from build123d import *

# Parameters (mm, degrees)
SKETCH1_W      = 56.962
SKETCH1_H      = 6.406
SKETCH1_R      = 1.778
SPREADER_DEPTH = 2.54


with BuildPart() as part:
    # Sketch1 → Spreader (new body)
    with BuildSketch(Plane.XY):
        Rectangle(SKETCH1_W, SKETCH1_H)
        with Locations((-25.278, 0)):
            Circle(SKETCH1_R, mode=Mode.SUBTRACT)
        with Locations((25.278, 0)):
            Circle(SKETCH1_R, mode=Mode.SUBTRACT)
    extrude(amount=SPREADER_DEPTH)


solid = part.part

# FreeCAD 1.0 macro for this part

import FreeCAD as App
import Part
import Sketcher
from FreeCAD import Vector
Q = App.Units.Quantity

doc = App.newDocument("Part")
body = doc.addObject("PartDesign::Body", "Body")

# Sketch on XY plane
sketch1 = doc.addObject("Sketcher::SketchObject", "Sketch")
body.addObject(sketch1)
sketch1.AttachmentSupport = (doc.XY_Plane, [""])
sketch1.MapMode = "FlatFace"
sketch1.addGeometry([
    Part.LineSegment(Vector(-28.481, 3.203, 0), Vector(-28.481, -3.203, 0)),  # 0
    Part.LineSegment(Vector(-28.481, -3.203, 0), Vector(28.481, -3.203, 0)),  # 1
    Part.LineSegment(Vector(28.481, -3.203, 0), Vector(28.481, 3.203, 0)),  # 2
    Part.LineSegment(Vector(28.481, 3.203, 0), Vector(-28.481, 3.203, 0)),  # 3
    Part.Circle(Vector(-25.278, 0, 0), Vector(0, 0, 1), 1.778),  # 4
    Part.Circle(Vector(25.278, 0, 0), Vector(0, 0, 1), 1.778),  # 5
], False)
sketch1.addConstraint([
    Sketcher.Constraint("Coincident", 0, 2, 1, 1),
    Sketcher.Constraint("Coincident", 1, 2, 2, 1),
    Sketcher.Constraint("Coincident", 2, 2, 3, 1),
    Sketcher.Constraint("Coincident", 3, 2, 0, 1),
    Sketcher.Constraint("Vertical", 0),
    Sketcher.Constraint("Horizontal", 1),
    Sketcher.Constraint("Vertical", 2),
    Sketcher.Constraint("Horizontal", 3),
    Sketcher.Constraint("Equal", 4, 5),
    Sketcher.Constraint("Symmetric", 4, 3, 5, 3, -1, 1),
    Sketcher.Constraint("Symmetric", 0, 2, 2, 2, -1, 1),
    Sketcher.Constraint("PointOnObject", 4, 3, -1),
    Sketcher.Constraint("Diameter", 4, Q("0.14 in")),
    Sketcher.Constraint("DistanceX", 1, 1, 1, 2, Q("56.962 mm")),
    Sketcher.Constraint("DistanceY", 0, 2, 0, 1, Q("6.406 mm")),
    Sketcher.Constraint("DistanceX", 4, 3, -1, 1, Q("25.278 mm")),
])
pad1 = doc.addObject("PartDesign::Pad", "Pad")
body.addObject(pad1)
pad1.Profile = sketch1
pad1.Length = Q("0.1 in")

doc.recompute()
